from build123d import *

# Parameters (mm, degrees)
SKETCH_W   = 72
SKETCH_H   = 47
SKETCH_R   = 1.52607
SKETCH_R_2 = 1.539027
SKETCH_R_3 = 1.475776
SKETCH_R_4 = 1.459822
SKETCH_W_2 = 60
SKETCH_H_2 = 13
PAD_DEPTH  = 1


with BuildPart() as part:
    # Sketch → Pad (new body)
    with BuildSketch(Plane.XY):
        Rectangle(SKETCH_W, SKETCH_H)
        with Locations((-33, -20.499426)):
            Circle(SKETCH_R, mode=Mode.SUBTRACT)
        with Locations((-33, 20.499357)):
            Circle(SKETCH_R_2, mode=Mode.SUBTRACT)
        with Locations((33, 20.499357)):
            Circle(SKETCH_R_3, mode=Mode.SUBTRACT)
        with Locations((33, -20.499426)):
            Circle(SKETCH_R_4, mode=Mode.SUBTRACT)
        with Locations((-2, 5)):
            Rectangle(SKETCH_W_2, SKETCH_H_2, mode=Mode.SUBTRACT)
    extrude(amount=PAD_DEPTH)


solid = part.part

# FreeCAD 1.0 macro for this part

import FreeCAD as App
import Part
import Sketcher

V = App.Vector


def add_polygon(sketch, points):
    """Adds a closed chain of lines whose ends are joined by coincident constraints."""
    first, n = sketch.GeometryCount, len(points)
    for a, b in zip(points, points[1:] + points[:1]):
        sketch.addGeometry(Part.LineSegment(App.Vector(*a, 0), App.Vector(*b, 0)), False)
    for i in range(n):
        sketch.addConstraint(Sketcher.Constraint("Coincident", first + i, 2, first + (i + 1) % n, 1))

doc = App.newDocument("Part")
body = doc.addObject("PartDesign::Body", "Body")

sketch1 = body.newObject("Sketcher::SketchObject", "Sketch")
sketch1.AttachmentSupport = (doc.getObject("XY_Plane"), [""])
sketch1.MapMode = "FlatFace"
add_polygon(sketch1, [(-36, 23.5), (-36, -23.5), (36, -23.5), (36, 23.5)])
sketch1.addGeometry(Part.Circle(V(-33, -20.499426, 0), V(0, 0, 1), 1.52607), False)
sketch1.addGeometry(Part.Circle(V(33, -20.499426, 0), V(0, 0, 1), 1.459822), False)
add_polygon(sketch1, [(28, -1.5), (-32, -1.5), (-32, 11.5), (28, 11.5)])
sketch1.addGeometry(Part.Circle(V(-33, 20.499357, 0), V(0, 0, 1), 1.539027), False)
sketch1.addGeometry(Part.Circle(V(33, 20.499357, 0), V(0, 0, 1), 1.475776), False)
sketch1.addConstraint([
    Sketcher.Constraint("Vertical", 0),
    Sketcher.Constraint("Horizontal", 1),
    Sketcher.Constraint("Vertical", 2),
    Sketcher.Constraint("Horizontal", 3),
    Sketcher.Constraint("Horizontal", 6),
    Sketcher.Constraint("Vertical", 7),
    Sketcher.Constraint("Horizontal", 8),
    Sketcher.Constraint("Vertical", 9),
    Sketcher.Constraint("Symmetric", 0, 2, 2, 2, -1, 1),
    Sketcher.Constraint("Symmetric", 4, 3, 5, 3, -2),
    Sketcher.Constraint("Symmetric", 10, 3, 11, 3, -2),
    Sketcher.Constraint("Vertical", 4, 3, 10, 3),
    Sketcher.Constraint("DistanceX", 1, 1, 1, 2, 72.0),
    Sketcher.Constraint("DistanceX", 6, 2, 6, 1, 60.0),
    Sketcher.Constraint("DistanceY", 0, 2, 0, 1, 47.0),
    Sketcher.Constraint("DistanceY", 7, 1, 7, 2, 13.0),
    Sketcher.Constraint("DistanceX", 4, 3, -1, 1, 33.0),
    Sketcher.Constraint("DistanceX", 6, 2, -1, 1, 32.0),
    Sketcher.Constraint("DistanceY", 0, 2, 6, 2, 22.0),
    Sketcher.Constraint("Diameter", 4, 3.05214),
    Sketcher.Constraint("Diameter", 11, 2.951552),
    Sketcher.Constraint("Diameter", 5, 2.919644),
    Sketcher.Constraint("Diameter", 10, 3.078054),
    Sketcher.Constraint("DistanceY", 4, 3, -1, 1, 20.499426),
    Sketcher.Constraint("DistanceY", -1, 1, 10, 3, 20.499357),
])
pad1 = body.newObject("PartDesign::Pad", "Pad")
pad1.Profile = sketch1
pad1.Length = 1

doc.recompute()
